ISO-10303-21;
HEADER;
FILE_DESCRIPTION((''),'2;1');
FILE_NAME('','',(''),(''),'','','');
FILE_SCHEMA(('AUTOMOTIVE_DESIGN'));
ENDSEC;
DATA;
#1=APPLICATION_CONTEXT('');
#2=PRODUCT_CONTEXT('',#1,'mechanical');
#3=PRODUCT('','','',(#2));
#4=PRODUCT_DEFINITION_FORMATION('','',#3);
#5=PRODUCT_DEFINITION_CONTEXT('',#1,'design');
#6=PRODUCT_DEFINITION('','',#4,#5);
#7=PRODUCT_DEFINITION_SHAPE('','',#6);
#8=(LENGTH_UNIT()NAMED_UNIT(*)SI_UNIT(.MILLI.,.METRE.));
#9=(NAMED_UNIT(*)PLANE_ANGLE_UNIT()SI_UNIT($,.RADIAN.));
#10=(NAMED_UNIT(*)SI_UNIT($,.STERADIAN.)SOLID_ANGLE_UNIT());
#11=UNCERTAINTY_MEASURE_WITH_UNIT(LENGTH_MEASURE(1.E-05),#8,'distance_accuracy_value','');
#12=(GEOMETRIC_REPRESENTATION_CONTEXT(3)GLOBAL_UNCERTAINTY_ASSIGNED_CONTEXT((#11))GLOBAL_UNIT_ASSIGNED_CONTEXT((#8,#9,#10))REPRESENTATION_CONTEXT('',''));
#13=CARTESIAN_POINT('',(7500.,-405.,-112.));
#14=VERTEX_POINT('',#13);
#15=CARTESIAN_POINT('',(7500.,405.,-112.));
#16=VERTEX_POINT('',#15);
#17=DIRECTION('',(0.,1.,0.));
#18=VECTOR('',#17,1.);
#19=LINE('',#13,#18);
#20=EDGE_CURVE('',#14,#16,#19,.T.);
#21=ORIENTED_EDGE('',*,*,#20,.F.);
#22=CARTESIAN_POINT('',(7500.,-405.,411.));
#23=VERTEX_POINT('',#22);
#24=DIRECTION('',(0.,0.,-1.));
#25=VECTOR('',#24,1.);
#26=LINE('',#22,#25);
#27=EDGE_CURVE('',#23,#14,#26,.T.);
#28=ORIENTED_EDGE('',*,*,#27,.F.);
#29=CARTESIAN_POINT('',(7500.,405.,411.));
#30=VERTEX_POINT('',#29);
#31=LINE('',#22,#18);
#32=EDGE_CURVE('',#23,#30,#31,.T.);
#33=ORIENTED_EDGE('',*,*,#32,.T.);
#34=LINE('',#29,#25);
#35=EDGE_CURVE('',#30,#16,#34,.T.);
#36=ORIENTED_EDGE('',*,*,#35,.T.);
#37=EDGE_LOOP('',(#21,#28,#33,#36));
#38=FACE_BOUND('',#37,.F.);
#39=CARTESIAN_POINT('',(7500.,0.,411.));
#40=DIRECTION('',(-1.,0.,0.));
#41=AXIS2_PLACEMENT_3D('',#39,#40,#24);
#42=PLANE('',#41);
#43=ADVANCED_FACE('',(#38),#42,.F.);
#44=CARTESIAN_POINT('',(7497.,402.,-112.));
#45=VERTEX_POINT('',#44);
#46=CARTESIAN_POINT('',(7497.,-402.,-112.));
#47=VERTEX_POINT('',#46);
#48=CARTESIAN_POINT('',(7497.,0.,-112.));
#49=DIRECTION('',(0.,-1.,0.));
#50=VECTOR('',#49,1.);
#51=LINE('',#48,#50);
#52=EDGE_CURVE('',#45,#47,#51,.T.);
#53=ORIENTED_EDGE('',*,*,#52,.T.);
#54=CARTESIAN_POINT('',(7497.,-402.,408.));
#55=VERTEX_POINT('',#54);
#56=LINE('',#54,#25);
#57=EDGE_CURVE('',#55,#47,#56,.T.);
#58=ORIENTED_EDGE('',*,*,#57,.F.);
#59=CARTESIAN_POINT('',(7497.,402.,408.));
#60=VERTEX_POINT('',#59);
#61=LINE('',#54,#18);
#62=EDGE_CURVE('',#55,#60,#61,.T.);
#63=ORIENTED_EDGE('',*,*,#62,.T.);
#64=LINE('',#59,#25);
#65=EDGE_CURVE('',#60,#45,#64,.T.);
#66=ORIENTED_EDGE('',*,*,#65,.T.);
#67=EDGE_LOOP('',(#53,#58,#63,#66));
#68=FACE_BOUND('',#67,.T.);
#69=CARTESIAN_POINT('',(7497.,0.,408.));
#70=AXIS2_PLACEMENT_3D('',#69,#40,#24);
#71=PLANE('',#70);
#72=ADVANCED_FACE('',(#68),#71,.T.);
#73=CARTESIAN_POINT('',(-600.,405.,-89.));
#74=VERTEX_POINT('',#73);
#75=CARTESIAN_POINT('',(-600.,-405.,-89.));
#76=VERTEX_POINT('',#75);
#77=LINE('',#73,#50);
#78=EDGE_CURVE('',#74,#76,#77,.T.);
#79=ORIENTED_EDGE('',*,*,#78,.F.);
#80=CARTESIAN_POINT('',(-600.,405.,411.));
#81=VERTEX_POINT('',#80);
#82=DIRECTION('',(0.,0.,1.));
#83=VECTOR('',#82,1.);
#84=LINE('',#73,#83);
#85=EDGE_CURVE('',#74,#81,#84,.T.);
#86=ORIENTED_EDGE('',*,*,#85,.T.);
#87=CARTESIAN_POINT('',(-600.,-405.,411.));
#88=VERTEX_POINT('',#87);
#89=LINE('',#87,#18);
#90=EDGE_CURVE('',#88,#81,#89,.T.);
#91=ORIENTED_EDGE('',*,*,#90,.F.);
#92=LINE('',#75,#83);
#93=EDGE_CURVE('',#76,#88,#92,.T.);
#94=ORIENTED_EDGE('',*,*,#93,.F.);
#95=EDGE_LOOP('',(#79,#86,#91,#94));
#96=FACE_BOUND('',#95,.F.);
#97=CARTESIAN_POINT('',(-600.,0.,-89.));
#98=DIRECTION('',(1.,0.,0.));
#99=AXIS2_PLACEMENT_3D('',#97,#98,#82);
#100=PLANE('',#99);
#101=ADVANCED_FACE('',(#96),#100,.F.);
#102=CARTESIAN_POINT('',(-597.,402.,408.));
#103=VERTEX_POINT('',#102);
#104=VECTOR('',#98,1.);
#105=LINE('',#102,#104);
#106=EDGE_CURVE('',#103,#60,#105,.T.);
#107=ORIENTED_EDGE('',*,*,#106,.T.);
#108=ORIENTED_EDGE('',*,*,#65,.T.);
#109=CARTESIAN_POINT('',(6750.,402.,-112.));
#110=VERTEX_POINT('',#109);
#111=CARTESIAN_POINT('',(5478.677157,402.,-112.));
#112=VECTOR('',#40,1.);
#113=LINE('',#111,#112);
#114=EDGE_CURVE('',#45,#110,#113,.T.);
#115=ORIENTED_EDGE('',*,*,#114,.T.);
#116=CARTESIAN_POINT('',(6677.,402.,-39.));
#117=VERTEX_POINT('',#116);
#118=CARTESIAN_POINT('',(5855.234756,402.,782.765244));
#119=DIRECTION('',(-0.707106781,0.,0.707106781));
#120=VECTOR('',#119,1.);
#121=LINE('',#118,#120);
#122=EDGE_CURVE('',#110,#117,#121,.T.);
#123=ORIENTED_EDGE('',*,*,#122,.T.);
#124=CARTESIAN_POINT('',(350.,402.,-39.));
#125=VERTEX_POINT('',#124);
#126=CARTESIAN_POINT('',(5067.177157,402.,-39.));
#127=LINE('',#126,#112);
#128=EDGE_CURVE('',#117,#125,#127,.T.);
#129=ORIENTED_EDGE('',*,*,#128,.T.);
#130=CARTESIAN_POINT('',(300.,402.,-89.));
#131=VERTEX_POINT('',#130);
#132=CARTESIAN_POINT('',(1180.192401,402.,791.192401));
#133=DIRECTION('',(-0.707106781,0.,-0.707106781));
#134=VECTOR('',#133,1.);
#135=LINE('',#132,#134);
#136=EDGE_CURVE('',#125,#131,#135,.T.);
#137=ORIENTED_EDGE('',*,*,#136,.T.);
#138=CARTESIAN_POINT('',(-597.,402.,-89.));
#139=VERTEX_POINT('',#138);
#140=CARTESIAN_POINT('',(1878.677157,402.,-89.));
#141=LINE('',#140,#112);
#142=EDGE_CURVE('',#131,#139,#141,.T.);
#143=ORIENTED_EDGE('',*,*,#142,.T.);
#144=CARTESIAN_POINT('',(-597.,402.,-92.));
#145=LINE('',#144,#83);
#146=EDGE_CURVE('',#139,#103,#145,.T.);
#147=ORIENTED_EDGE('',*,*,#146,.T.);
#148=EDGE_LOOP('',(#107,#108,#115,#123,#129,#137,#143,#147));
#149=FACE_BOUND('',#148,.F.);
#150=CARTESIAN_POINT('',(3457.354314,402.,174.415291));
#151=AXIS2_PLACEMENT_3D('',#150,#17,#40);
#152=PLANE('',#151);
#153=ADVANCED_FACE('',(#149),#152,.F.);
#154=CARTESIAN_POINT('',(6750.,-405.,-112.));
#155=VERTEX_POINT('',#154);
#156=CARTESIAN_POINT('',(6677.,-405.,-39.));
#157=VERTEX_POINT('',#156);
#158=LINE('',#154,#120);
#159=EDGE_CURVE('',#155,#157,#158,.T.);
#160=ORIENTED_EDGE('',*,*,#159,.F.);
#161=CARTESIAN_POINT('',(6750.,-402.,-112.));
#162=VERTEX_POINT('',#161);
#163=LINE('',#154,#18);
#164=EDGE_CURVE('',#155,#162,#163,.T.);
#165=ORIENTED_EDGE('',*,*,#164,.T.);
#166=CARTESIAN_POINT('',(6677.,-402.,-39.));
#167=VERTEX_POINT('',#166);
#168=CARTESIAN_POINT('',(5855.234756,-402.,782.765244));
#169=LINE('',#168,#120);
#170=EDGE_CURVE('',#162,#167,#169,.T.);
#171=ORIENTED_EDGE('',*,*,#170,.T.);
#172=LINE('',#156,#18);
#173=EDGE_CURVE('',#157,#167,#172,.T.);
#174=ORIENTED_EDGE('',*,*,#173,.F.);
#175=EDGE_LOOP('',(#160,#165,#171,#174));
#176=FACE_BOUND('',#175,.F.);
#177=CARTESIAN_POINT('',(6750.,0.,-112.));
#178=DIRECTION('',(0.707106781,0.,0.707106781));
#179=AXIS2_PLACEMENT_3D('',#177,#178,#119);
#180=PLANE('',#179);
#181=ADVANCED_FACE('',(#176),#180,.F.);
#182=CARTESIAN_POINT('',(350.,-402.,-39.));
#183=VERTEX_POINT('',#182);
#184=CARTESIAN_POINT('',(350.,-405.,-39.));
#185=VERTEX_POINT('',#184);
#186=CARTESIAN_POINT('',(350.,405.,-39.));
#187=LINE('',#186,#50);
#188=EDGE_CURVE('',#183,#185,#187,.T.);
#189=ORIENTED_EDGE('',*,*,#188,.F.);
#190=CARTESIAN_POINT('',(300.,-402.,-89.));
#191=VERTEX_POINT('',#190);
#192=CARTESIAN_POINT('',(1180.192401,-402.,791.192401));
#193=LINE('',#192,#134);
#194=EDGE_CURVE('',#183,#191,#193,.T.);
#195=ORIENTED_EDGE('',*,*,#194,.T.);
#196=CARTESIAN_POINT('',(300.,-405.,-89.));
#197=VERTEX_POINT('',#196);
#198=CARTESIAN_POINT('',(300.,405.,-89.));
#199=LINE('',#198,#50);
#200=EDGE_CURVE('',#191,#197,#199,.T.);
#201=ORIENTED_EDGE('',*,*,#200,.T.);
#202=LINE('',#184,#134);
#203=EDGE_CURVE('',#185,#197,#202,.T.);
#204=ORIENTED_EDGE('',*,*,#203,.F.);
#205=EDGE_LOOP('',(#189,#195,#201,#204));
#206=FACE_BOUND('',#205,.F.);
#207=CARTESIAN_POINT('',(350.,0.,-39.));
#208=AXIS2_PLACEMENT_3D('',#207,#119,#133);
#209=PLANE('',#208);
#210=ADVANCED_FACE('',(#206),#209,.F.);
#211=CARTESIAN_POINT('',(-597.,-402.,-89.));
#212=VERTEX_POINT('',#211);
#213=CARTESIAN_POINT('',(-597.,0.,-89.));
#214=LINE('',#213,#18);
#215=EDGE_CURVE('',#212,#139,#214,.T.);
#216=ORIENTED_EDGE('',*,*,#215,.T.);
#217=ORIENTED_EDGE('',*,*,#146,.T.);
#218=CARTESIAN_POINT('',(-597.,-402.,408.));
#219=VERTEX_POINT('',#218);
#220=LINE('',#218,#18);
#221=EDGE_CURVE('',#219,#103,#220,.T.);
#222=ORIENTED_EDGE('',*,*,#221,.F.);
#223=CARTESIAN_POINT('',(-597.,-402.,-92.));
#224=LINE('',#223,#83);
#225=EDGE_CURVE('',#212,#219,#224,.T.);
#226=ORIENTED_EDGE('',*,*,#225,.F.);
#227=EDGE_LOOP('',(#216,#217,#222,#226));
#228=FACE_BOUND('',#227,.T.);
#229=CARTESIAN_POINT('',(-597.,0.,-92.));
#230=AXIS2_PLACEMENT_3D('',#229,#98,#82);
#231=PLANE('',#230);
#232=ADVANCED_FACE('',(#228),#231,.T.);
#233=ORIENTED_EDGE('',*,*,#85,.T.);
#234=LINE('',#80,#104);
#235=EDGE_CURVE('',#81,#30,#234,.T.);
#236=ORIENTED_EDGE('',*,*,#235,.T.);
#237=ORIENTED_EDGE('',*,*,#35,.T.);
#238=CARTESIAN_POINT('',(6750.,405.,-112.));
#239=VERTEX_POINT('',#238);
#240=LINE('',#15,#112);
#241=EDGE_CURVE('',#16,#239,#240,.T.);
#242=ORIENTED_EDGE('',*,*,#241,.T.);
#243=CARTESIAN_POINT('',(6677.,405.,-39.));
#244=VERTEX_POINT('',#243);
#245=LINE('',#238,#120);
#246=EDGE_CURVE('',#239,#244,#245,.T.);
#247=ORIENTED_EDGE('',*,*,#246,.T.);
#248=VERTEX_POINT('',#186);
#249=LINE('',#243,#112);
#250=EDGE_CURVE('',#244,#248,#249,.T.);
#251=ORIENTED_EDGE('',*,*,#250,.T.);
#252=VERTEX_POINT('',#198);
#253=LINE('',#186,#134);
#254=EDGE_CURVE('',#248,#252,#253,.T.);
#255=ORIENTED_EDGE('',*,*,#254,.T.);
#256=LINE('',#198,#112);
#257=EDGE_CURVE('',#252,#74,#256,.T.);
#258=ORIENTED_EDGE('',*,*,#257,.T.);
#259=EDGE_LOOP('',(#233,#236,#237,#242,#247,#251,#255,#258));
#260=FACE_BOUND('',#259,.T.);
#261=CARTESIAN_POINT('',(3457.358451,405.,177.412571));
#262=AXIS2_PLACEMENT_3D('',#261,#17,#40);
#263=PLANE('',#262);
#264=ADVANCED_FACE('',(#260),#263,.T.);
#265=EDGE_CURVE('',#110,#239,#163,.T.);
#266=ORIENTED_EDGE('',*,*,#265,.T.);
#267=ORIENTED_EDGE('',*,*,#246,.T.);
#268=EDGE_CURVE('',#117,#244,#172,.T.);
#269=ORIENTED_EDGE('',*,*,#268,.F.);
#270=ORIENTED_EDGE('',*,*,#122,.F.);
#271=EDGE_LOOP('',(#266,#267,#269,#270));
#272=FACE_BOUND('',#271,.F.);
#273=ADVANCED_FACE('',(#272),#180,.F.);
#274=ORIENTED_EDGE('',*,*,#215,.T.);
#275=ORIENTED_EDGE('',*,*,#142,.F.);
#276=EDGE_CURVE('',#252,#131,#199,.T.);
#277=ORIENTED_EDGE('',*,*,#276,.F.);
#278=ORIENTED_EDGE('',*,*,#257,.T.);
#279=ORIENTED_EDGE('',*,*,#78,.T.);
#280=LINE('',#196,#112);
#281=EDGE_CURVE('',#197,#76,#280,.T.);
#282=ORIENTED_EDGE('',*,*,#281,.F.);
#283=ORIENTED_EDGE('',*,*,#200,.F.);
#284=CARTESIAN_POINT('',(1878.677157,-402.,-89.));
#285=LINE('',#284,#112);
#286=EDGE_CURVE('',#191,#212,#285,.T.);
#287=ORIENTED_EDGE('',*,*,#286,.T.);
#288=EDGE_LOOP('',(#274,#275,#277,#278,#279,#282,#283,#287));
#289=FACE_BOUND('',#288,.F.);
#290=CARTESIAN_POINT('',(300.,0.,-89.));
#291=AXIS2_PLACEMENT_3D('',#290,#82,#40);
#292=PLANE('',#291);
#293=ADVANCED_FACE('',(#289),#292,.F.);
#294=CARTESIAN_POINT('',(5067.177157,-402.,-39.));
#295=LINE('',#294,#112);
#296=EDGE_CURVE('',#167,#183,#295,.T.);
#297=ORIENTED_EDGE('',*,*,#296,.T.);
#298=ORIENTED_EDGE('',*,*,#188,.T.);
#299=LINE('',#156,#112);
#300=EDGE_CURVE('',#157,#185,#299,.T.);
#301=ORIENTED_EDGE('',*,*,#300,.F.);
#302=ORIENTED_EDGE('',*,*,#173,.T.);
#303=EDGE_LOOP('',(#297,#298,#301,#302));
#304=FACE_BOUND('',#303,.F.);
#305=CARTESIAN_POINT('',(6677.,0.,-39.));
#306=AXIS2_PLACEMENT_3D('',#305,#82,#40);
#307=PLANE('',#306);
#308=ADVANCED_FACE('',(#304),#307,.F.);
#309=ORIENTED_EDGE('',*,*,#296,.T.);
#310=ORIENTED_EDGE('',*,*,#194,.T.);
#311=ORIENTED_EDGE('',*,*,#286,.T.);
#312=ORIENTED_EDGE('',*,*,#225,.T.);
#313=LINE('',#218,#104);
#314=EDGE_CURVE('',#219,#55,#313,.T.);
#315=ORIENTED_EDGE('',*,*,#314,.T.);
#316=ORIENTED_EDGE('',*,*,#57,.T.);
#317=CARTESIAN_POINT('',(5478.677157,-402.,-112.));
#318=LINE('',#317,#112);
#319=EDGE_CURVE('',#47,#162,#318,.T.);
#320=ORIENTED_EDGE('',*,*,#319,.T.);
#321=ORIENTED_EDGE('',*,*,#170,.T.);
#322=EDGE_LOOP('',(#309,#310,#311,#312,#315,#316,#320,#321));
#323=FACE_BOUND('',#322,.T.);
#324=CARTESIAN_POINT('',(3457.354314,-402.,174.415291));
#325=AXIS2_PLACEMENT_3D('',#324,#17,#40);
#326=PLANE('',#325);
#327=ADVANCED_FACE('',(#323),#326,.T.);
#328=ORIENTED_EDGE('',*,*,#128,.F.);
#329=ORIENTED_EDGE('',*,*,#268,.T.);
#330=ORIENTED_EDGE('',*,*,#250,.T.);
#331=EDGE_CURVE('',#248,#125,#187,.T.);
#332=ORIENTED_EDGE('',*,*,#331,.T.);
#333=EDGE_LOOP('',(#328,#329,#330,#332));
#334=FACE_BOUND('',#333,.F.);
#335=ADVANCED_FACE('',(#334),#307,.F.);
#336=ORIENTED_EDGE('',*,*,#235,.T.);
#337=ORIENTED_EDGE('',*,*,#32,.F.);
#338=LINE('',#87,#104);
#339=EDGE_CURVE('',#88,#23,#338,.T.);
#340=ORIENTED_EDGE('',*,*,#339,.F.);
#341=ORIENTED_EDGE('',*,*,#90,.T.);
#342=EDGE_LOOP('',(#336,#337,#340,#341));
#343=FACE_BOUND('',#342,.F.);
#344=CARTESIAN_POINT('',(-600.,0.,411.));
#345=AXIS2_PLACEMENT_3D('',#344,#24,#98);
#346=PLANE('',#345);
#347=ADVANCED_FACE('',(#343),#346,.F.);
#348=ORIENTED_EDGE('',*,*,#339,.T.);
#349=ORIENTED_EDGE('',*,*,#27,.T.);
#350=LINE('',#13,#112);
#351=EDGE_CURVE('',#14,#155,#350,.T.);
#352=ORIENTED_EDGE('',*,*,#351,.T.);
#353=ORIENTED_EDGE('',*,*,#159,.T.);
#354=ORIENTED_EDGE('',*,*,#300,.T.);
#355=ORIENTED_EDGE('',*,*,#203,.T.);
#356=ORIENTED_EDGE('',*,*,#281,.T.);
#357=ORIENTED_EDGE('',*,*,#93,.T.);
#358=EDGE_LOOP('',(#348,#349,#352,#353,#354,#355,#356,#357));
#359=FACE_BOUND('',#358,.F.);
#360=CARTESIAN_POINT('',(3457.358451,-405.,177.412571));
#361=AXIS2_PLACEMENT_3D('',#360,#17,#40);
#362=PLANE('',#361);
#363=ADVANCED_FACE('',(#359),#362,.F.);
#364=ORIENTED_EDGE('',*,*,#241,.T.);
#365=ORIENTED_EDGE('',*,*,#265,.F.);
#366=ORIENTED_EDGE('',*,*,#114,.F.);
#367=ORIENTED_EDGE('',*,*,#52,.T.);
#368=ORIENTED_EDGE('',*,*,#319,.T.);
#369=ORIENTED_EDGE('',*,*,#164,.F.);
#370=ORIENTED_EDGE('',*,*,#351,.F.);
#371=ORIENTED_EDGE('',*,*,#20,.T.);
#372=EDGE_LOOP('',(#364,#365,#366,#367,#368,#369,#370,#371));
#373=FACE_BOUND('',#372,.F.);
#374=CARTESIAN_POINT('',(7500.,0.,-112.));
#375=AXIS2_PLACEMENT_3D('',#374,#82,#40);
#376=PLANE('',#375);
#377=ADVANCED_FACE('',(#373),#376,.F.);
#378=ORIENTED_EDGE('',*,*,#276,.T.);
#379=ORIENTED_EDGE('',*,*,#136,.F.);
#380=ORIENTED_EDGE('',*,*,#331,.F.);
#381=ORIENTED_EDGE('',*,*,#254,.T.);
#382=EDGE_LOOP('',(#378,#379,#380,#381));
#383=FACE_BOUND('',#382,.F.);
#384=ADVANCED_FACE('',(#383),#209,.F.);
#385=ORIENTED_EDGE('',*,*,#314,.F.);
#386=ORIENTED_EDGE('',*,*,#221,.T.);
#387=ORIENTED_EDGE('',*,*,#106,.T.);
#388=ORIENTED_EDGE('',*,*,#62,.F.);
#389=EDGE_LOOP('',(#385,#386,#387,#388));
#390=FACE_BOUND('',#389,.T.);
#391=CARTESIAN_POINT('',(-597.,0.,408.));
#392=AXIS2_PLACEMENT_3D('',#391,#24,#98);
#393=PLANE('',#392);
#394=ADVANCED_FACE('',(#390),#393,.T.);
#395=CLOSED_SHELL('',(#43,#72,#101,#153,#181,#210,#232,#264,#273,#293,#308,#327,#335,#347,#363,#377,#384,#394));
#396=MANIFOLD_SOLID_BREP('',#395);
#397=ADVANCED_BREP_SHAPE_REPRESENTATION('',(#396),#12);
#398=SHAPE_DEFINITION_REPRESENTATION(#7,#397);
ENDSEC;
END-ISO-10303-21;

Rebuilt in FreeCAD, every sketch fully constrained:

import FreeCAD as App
import Part
import Sketcher

V = App.Vector
Q = App.Units.Quantity


def add_polygon(sketch, points):
    """Adds a closed chain of lines whose ends are joined by coincident constraints."""
    first, n = sketch.GeometryCount, len(points)
    for a, b in zip(points, points[1:] + points[:1]):
        sketch.addGeometry(Part.LineSegment(App.Vector(*a, 0), App.Vector(*b, 0)), False)
    for i in range(n):
        sketch.addConstraint(Sketcher.Constraint("Coincident", first + i, 2, first + (i + 1) % n, 1))

doc = App.newDocument("Part")
body = doc.addObject("PartDesign::Body", "Body")

# Sketch on XZ plane
sketch1 = body.newObject("Sketcher::SketchObject", "Sketch")
sketch1.AttachmentSupport = (doc.getObject("XZ_Plane"), [""])
sketch1.MapMode = "FlatFace"
add_polygon(sketch1, [(-597, 411), (-597, -89), (300, -89), (350, -39), (6674, -39), (6747, -112), (7497, -112), (7497, 411)])  # lines 0-7
sketch1.addConstraint([
    Sketcher.Constraint("Vertical", 0),
    Sketcher.Constraint("Horizontal", 1),
    Sketcher.Constraint("Horizontal", 3),
    Sketcher.Constraint("Horizontal", 5),
    Sketcher.Constraint("Vertical", 6),
    Sketcher.Constraint("Horizontal", 7),
    Sketcher.Constraint("Perpendicular", 2, 4),
    Sketcher.Constraint("DistanceX", 1, 1, 1, 2, Q("897 mm")),
    Sketcher.Constraint("DistanceX", 3, 1, 3, 2, Q("6324 mm")),
    Sketcher.Constraint("DistanceX", 5, 1, 5, 2, Q("750 mm")),
    Sketcher.Constraint("DistanceX", 7, 2, 7, 1, Q("8094 mm")),
    Sketcher.Constraint("DistanceY", 0, 2, 0, 1, Q("500 mm")),
    Sketcher.Constraint("DistanceY", 6, 1, 6, 2, Q("523 mm")),
    Sketcher.Constraint("Angle", 2, Q("45 deg")),
    Sketcher.Constraint("DistanceX", 0, 2, -1, 1, Q("597 mm")),
    Sketcher.Constraint("DistanceY", 0, 2, -1, 1, Q("89 mm")),
])
pad1 = body.newObject("PartDesign::Pad", "Pad")
pad1.Profile = sketch1
pad1.Length = 804
pad1.Midplane = True
body2 = doc.addObject("PartDesign::Body", "Body001")
doc.recompute()

body.Placement = App.Placement(V(0, 0, -3), App.Rotation(V(0, 0, 1), 0))
boolean = body2.newObject("PartDesign::Boolean", "Boolean")
boolean.Type = "Fuse"
boolean.addObjects([body])
body3 = doc.addObject("PartDesign::Body", "Body002")

# Sketch on XZ plane
sketch2 = body3.newObject("Sketcher::SketchObject", "Sketch001")
sketch2.AttachmentSupport = (doc.getObject("XZ_Plane002"), [""])
sketch2.MapMode = "FlatFace"
add_polygon(sketch2, [(-600, 411), (-600, -89), (300, -89), (350, -39), (6677, -39), (6750, -112), (7500, -112), (7500, 411)])  # lines 0-7
sketch2.addConstraint([
    Sketcher.Constraint("Vertical", 0),
    Sketcher.Constraint("Horizontal", 1),
    Sketcher.Constraint("Horizontal", 3),
    Sketcher.Constraint("Horizontal", 5),
    Sketcher.Constraint("Vertical", 6),
    Sketcher.Constraint("Horizontal", 7),
    Sketcher.Constraint("Perpendicular", 2, 4),
    Sketcher.Constraint("DistanceX", 1, 1, 1, 2, Q("900 mm")),
    Sketcher.Constraint("DistanceX", 3, 1, 3, 2, Q("6327 mm")),
    Sketcher.Constraint("DistanceX", 5, 1, 5, 2, Q("750 mm")),
    Sketcher.Constraint("DistanceX", 7, 2, 7, 1, Q("8100 mm")),
    Sketcher.Constraint("DistanceY", 0, 2, 0, 1, Q("500 mm")),
    Sketcher.Constraint("DistanceY", 6, 1, 6, 2, Q("523 mm")),
    Sketcher.Constraint("Angle", 2, Q("45 deg")),
    Sketcher.Constraint("DistanceX", 0, 2, -1, 1, Q("600 mm")),
    Sketcher.Constraint("DistanceY", 0, 2, -1, 1, Q("89 mm")),
])
pad2 = body3.newObject("PartDesign::Pad", "Pad001")
pad2.Profile = sketch2
pad2.Length = 810
pad2.Midplane = True
doc.recompute()

boolean2 = body3.newObject("PartDesign::Boolean", "Boolean001")
boolean2.Type = "Cut"
boolean2.addObjects([body2])

doc.recompute()
